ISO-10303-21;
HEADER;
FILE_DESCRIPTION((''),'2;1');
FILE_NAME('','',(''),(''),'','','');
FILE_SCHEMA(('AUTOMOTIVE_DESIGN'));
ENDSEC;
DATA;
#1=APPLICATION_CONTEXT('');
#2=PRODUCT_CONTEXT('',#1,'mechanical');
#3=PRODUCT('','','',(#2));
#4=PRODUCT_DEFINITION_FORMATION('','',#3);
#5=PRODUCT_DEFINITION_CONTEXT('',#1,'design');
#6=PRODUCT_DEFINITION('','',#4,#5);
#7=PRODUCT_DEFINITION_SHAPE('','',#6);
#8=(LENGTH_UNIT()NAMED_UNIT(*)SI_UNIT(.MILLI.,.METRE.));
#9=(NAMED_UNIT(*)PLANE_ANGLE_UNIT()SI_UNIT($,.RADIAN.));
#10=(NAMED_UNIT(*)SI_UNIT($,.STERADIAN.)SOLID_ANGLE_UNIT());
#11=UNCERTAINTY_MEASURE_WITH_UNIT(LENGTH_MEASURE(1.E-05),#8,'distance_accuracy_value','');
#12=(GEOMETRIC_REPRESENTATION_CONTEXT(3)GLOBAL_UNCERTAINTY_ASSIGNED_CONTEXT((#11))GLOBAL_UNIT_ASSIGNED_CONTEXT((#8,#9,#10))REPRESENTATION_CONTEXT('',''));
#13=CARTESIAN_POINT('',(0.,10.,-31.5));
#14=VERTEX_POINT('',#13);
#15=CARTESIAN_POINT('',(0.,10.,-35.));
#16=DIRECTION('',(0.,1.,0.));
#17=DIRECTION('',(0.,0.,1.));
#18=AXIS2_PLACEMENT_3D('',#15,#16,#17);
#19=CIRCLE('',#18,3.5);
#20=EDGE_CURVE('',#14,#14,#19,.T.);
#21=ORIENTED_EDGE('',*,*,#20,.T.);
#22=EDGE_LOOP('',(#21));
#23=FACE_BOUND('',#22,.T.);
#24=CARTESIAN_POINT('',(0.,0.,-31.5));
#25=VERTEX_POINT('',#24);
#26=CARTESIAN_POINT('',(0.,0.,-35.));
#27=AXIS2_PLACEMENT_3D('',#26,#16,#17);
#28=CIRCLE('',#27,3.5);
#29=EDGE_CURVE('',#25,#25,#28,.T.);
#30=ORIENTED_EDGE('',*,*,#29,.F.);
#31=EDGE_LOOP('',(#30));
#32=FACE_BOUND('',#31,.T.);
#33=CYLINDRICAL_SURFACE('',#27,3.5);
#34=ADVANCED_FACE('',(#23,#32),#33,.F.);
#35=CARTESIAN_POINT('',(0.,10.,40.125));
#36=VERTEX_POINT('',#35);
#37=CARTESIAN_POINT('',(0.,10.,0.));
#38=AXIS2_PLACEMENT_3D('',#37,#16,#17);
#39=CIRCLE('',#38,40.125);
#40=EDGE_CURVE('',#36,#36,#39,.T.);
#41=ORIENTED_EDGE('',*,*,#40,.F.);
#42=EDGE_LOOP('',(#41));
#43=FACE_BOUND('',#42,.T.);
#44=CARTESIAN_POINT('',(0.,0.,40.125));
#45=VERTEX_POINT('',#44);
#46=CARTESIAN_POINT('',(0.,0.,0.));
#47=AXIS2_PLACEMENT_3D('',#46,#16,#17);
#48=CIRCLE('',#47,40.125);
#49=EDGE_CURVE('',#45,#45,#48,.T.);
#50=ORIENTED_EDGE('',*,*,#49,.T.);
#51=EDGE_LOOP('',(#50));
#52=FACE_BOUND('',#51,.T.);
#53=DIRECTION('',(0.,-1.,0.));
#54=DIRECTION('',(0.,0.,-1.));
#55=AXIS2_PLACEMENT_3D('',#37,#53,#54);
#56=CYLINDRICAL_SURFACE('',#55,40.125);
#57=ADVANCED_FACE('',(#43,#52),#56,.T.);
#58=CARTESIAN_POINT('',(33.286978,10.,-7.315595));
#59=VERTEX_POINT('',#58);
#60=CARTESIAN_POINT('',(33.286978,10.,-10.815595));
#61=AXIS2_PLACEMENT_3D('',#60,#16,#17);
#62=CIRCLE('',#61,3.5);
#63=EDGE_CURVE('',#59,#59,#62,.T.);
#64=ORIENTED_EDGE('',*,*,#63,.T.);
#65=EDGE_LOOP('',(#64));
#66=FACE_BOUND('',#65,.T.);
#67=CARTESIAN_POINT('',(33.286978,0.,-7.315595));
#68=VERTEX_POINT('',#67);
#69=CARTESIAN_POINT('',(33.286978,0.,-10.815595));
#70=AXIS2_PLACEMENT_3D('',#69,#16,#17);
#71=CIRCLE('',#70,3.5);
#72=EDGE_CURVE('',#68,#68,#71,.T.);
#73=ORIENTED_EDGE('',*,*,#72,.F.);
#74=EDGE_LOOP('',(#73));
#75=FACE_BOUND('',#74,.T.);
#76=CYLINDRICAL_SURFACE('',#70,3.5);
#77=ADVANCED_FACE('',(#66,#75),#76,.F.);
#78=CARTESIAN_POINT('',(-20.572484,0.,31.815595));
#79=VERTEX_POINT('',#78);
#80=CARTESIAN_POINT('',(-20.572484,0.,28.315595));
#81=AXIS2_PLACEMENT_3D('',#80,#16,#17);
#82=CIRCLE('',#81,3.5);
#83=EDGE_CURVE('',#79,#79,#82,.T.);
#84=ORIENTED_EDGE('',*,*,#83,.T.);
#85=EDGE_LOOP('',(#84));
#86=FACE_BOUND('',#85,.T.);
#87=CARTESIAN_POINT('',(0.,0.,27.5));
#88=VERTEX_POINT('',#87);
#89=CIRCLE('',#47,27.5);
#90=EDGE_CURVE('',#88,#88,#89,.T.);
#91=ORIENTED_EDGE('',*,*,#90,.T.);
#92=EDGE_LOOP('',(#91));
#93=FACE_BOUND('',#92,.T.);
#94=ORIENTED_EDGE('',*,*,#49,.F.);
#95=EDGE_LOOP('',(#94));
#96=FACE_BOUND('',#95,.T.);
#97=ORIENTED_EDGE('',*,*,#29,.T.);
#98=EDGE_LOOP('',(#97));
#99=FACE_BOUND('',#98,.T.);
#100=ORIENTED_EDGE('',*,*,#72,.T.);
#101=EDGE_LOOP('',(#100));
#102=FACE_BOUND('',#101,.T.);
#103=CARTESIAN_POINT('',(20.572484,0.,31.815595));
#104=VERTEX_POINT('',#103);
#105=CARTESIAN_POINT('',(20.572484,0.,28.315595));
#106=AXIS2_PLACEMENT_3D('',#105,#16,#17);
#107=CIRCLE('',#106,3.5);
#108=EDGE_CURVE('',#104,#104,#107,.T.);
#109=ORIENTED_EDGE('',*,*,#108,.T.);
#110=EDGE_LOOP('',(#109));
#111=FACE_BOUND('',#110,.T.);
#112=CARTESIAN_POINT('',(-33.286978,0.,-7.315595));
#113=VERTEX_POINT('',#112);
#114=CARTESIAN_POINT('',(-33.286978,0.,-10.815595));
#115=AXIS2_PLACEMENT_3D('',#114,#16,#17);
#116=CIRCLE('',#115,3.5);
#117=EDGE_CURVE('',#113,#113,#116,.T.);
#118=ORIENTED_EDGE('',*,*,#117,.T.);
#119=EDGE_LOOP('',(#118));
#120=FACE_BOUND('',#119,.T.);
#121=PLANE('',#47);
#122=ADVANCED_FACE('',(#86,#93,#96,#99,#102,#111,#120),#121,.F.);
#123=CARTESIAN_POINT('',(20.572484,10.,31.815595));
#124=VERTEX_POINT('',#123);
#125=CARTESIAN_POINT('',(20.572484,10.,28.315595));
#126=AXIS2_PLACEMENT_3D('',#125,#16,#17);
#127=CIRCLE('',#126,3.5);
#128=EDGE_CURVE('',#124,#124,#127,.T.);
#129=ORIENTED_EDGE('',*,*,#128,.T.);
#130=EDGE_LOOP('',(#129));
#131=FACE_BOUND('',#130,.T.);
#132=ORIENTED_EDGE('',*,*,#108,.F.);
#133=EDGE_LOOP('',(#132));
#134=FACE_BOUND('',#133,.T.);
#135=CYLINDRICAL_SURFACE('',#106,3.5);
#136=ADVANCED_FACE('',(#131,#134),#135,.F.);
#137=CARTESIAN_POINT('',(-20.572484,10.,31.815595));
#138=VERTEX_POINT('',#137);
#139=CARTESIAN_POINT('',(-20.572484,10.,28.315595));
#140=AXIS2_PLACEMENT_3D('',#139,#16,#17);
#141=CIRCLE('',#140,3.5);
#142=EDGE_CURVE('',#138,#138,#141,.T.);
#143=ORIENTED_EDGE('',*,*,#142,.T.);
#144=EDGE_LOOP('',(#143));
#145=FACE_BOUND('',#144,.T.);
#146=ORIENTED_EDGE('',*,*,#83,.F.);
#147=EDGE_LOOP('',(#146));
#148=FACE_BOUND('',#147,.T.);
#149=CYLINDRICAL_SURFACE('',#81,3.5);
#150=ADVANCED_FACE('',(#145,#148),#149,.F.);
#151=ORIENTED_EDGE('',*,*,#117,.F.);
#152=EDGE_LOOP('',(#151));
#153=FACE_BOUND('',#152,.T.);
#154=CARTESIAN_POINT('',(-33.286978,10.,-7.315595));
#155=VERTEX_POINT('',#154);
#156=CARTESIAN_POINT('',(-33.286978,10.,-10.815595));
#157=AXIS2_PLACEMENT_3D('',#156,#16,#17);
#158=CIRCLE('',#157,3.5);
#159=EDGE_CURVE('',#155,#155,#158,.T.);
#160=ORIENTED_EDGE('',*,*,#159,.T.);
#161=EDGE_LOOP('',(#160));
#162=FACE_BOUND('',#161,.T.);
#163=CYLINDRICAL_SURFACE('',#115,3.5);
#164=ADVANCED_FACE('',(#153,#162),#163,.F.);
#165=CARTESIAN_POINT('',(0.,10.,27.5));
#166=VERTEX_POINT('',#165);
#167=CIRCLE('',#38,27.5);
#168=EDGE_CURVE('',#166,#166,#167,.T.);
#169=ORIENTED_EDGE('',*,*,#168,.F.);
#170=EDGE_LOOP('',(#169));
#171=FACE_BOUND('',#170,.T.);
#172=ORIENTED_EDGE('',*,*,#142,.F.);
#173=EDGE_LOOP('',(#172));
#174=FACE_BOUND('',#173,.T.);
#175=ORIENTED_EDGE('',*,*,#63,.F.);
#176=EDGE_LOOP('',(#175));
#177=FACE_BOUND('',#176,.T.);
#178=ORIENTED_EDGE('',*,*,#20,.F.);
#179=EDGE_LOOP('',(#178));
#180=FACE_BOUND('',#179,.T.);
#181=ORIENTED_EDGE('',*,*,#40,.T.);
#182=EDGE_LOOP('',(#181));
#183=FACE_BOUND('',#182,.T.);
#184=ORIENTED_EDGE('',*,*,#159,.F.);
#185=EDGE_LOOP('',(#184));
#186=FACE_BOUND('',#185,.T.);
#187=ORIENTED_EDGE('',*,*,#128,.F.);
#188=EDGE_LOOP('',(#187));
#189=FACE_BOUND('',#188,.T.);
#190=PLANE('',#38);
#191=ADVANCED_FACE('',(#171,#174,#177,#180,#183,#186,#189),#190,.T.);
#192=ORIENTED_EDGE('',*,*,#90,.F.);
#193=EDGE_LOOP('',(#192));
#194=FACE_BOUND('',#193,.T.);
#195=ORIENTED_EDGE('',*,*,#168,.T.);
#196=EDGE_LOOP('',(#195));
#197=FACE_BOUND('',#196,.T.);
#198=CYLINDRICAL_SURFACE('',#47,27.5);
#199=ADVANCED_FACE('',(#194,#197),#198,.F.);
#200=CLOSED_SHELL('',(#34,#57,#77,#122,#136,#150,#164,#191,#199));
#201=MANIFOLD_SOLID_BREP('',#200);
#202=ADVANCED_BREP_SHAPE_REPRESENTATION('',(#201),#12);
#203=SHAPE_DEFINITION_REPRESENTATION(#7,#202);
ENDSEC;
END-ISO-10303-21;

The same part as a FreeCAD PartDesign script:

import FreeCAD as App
import Part
import Sketcher
Q = App.Units.Quantity

doc = App.newDocument("Part")
params = doc.addObject("Spreadsheet::Sheet", "Params")
for row, (alias, value) in enumerate([
    ("sketch1_diameter", "80.25 mm"),
    ("pad1_length", "10 mm"),
    ("sketch2_diameter", "55 mm"),
    ("pocket1_length", "10 mm"),
    ("sketch3_diameter", "7 mm"),
    ("pocket2_length", "10 mm"),
], start=1):
    params.set(f"A{row}", alias)
    params.set(f"B{row}", "=" + value)
    params.setAlias(f"B{row}", alias)

body = doc.addObject("PartDesign::Body", "Body")

# Sketch on XZ plane
sketch1 = body.newObject("Sketcher::SketchObject", "Sketch")
sketch1.AttachmentSupport = (doc.getObject("XZ_Plane"), [""])
sketch1.MapMode = "FlatFace"
sketch1.addGeometry(Part.Circle(App.Vector(0, 0, 0), App.Vector(0, 0, 1), 40), False)
sketch1.addConstraint([
    Sketcher.Constraint("Coincident", 0, 3, -1, 1),
    Sketcher.Constraint("Diameter", 0, Q("80.25 mm")),
])
sketch1.setExpression("Constraints[1]", "Params.sketch1_diameter")
pad1 = body.newObject("PartDesign::Pad", "Pad")
pad1.Profile = sketch1
pad1.setExpression("Length", "Params.pad1_length")
pad1.Reversed = True

# Sketch on XZ plane
sketch2 = body.newObject("Sketcher::SketchObject", "Sketch001")
sketch2.AttachmentSupport = (doc.getObject("XZ_Plane"), [""])
sketch2.MapMode = "FlatFace"
sketch2.AttachmentOffset = App.Placement(App.Vector(0, 0, -10), App.Rotation())
sketch2.addGeometry(Part.Circle(App.Vector(0, 0, 0), App.Vector(0, 0, 1), 28), False)
sketch2.addConstraint([
    Sketcher.Constraint("Coincident", 0, 3, -1, 1),
    Sketcher.Constraint("Diameter", 0, Q("55 mm")),
])
sketch2.setExpression("Constraints[1]", "Params.sketch2_diameter")
pocket1 = body.newObject("PartDesign::Pocket", "Pocket")
pocket1.Profile = sketch2
pocket1.setExpression("Length", "Params.pocket1_length")
pocket1.Reversed = True

# Sketch on XZ plane
sketch3 = body.newObject("Sketcher::SketchObject", "Sketch002")
sketch3.AttachmentSupport = (doc.getObject("XZ_Plane"), [""])
sketch3.MapMode = "FlatFace"
sketch3.AttachmentOffset = App.Placement(App.Vector(0, 0, -10), App.Rotation())
sketch3.addGeometry([
    Part.Circle(App.Vector(0, -35, 0), App.Vector(0, 0, 1), 3.5),  # 0
    Part.Circle(App.Vector(33.3, -10.8, 0), App.Vector(0, 0, 1), 3.5),  # 1
    Part.Circle(App.Vector(20.6, 28.3, 0), App.Vector(0, 0, 1), 3.5),  # 2
    Part.Circle(App.Vector(-20.6, 28.3, 0), App.Vector(0, 0, 1), 3.5),  # 3
    Part.Circle(App.Vector(-33.3, -10.8, 0), App.Vector(0, 0, 1), 3.5),  # 4
], False)
sketch3.addConstraint([
    Sketcher.Constraint("Equal", 0, 1),
    Sketcher.Constraint("Equal", 1, 2),
    Sketcher.Constraint("Equal", 2, 3),
    Sketcher.Constraint("Equal", 3, 4),
    Sketcher.Constraint("Symmetric", 2, 3, 3, 3, -2),
    Sketcher.Constraint("Symmetric", 1, 3, 4, 3, -2),
    Sketcher.Constraint("PointOnObject", 0, 3, -2),
    Sketcher.Constraint("Diameter", 0, Q("7 mm")),
    Sketcher.Constraint("DistanceY", 0, 3, -1, 1, Q("35 mm")),
    Sketcher.Constraint("DistanceX", -1, 1, 1, 3, Q("33.286978 mm")),
    Sketcher.Constraint("DistanceY", 1, 3, 2, 3, Q("39.13119 mm")),
    Sketcher.Constraint("DistanceX", 3, 3, 1, 3, Q("53.859462 mm")),
    Sketcher.Constraint("DistanceY", 1, 3, -1, 1, Q("10.815595 mm")),
])
sketch3.setExpression("Constraints[7]", "Params.sketch3_diameter")
pocket2 = body.newObject("PartDesign::Pocket", "Pocket001")
pocket2.Profile = sketch3
pocket2.setExpression("Length", "Params.pocket2_length")
pocket2.Reversed = True

doc.recompute()
